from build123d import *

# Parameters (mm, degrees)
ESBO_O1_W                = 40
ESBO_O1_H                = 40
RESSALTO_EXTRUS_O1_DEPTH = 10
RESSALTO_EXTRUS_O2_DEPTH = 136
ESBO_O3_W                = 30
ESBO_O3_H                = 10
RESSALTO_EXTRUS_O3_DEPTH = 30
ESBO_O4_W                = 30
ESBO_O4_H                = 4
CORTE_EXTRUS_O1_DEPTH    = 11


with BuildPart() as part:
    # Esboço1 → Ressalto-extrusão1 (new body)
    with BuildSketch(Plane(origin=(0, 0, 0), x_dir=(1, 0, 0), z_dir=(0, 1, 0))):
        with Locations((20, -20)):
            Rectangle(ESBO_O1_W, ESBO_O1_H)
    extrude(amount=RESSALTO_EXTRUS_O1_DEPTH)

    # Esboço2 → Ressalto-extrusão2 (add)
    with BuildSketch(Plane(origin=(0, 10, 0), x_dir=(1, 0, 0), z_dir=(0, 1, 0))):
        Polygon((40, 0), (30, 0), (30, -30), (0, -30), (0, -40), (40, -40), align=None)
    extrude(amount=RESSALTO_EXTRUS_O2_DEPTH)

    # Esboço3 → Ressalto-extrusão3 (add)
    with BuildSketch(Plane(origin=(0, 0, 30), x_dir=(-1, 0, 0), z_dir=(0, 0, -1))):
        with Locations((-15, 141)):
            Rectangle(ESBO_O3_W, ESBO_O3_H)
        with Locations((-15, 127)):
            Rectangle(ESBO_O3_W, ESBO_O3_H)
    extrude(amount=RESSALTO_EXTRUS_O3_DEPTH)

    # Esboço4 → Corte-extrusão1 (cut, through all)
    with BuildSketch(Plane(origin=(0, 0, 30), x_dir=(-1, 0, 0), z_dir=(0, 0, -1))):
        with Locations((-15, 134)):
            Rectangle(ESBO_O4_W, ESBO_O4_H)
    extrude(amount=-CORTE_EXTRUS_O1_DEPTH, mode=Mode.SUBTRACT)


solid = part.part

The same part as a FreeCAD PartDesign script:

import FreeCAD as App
import Part
import Sketcher

doc = App.newDocument("Part")
body = doc.addObject("PartDesign::Body", "Body")

sketch1 = body.newObject("Sketcher::SketchObject", "Sketch")
sketch1.AttachmentSupport = (doc.getObject("XZ_Plane"), [""])
sketch1.MapMode = "FlatFace"
sketch1.addGeometry([
    Part.LineSegment(App.Vector(0, 0, 0), App.Vector(0, 40, 0)),
    Part.LineSegment(App.Vector(0, 40, 0), App.Vector(40, 40, 0)),
    Part.LineSegment(App.Vector(40, 40, 0), App.Vector(40, 0, 0)),
    Part.LineSegment(App.Vector(40, 0, 0), App.Vector(0, 0, 0)),
], False)
sketch1.addConstraint([
    Sketcher.Constraint("Coincident", 0, 2, 1, 1),
    Sketcher.Constraint("Coincident", 1, 2, 2, 1),
    Sketcher.Constraint("Coincident", 2, 2, 3, 1),
    Sketcher.Constraint("Coincident", 3, 2, 0, 1),
    Sketcher.Constraint("Vertical", 0),
    Sketcher.Constraint("Horizontal", 1),
    Sketcher.Constraint("Vertical", 2),
    Sketcher.Constraint("Horizontal", 3),
    Sketcher.Constraint("Coincident", 3, 2, -1, 1),
    Sketcher.Constraint("Equal", 3, 0),
    Sketcher.Constraint("DistanceX", 1, 1, 1, 2, 40.0),
])
pad1 = body.newObject("PartDesign::Pad", "Pad")
pad1.Profile = sketch1
pad1.Length = 10
pad1.Reversed = True

sketch2 = body.newObject("Sketcher::SketchObject", "Sketch001")
sketch2.AttachmentSupport = (doc.getObject("XZ_Plane"), [""])
sketch2.MapMode = "FlatFace"
sketch2.AttachmentOffset = App.Placement(App.Vector(0, 0, -10), App.Rotation())
sketch2.addGeometry([
    Part.LineSegment(App.Vector(40, 0, 0), App.Vector(30, 0, 0)),
    Part.LineSegment(App.Vector(30, 0, 0), App.Vector(30, 30, 0)),
    Part.LineSegment(App.Vector(30, 30, 0), App.Vector(0, 30, 0)),
    Part.LineSegment(App.Vector(0, 30, 0), App.Vector(0, 40, 0)),
    Part.LineSegment(App.Vector(0, 40, 0), App.Vector(40, 40, 0)),
    Part.LineSegment(App.Vector(40, 40, 0), App.Vector(40, 0, 0)),
], False)
sketch2.addConstraint([
    Sketcher.Constraint("Coincident", 0, 2, 1, 1),
    Sketcher.Constraint("Coincident", 1, 2, 2, 1),
    Sketcher.Constraint("Coincident", 2, 2, 3, 1),
    Sketcher.Constraint("Coincident", 3, 2, 4, 1),
    Sketcher.Constraint("Coincident", 4, 2, 5, 1),
    Sketcher.Constraint("Coincident", 5, 2, 0, 1),
    Sketcher.Constraint("Horizontal", 0),
    Sketcher.Constraint("Vertical", 1),
    Sketcher.Constraint("Horizontal", 2),
    Sketcher.Constraint("Vertical", 3),
    Sketcher.Constraint("Horizontal", 4),
    Sketcher.Constraint("Vertical", 5),
    Sketcher.Constraint("PointOnObject", 0, 2, -1),
    Sketcher.Constraint("PointOnObject", 2, 2, -2),
    Sketcher.Constraint("Equal", 2, 1),
    Sketcher.Constraint("Equal", 0, 3),
    Sketcher.Constraint("DistanceX", 0, 2, 0, 1, 10.0),
    Sketcher.Constraint("DistanceX", 2, 2, 2, 1, 30.0),
])
pad2 = body.newObject("PartDesign::Pad", "Pad001")
pad2.Profile = sketch2
pad2.Length = 136
pad2.Reversed = True

sketch3 = body.newObject("Sketcher::SketchObject", "Sketch002")
sketch3.AttachmentSupport = (doc.getObject("XY_Plane"), [""])
sketch3.MapMode = "FlatFace"
sketch3.AttachmentOffset = App.Placement(App.Vector(0, 0, 30), App.Rotation())
sketch3.addGeometry([
    Part.LineSegment(App.Vector(30, 146, 0), App.Vector(30, 136, 0)),
    Part.LineSegment(App.Vector(30, 136, 0), App.Vector(0, 136, 0)),
    Part.LineSegment(App.Vector(0, 136, 0), App.Vector(0, 146, 0)),
    Part.LineSegment(App.Vector(0, 146, 0), App.Vector(30, 146, 0)),
    Part.LineSegment(App.Vector(30, 132, 0), App.Vector(30, 122, 0)),
    Part.LineSegment(App.Vector(30, 122, 0), App.Vector(0, 122, 0)),
    Part.LineSegment(App.Vector(0, 122, 0), App.Vector(0, 132, 0)),
    Part.LineSegment(App.Vector(0, 132, 0), App.Vector(30, 132, 0)),
], False)
sketch3.addConstraint([
    Sketcher.Constraint("Coincident", 0, 2, 1, 1),
    Sketcher.Constraint("Coincident", 1, 2, 2, 1),
    Sketcher.Constraint("Coincident", 2, 2, 3, 1),
    Sketcher.Constraint("Coincident", 3, 2, 0, 1),
    Sketcher.Constraint("Coincident", 4, 2, 5, 1),
    Sketcher.Constraint("Coincident", 5, 2, 6, 1),
    Sketcher.Constraint("Coincident", 6, 2, 7, 1),
    Sketcher.Constraint("Coincident", 7, 2, 4, 1),
    Sketcher.Constraint("Vertical", 0),
    Sketcher.Constraint("Horizontal", 1),
    Sketcher.Constraint("Vertical", 2),
    Sketcher.Constraint("Horizontal", 3),
    Sketcher.Constraint("Vertical", 4),
    Sketcher.Constraint("Horizontal", 5),
    Sketcher.Constraint("Vertical", 6),
    Sketcher.Constraint("Horizontal", 7),
    Sketcher.Constraint("PointOnObject", 1, 2, -2),
    Sketcher.Constraint("PointOnObject", 5, 2, -2),
    Sketcher.Constraint("Vertical", 3, 2, 4, 2),
    Sketcher.Constraint("Equal", 2, 4),
    Sketcher.Constraint("DistanceX", 1, 2, 1, 1, 30.0),
    Sketcher.Constraint("DistanceY", 0, 2, 0, 1, 10.0),
    Sketcher.Constraint("DistanceY", -1, 1, 0, 2, 136.0),
    Sketcher.Constraint("DistanceY", -1, 1, 4, 2, 122.0),
])
pad3 = body.newObject("PartDesign::Pad", "Pad002")
pad3.Profile = sketch3
pad3.Length = 30
pad3.Reversed = True

sketch4 = body.newObject("Sketcher::SketchObject", "Sketch003")
sketch4.AttachmentSupport = (doc.getObject("XY_Plane"), [""])
sketch4.MapMode = "FlatFace"
sketch4.AttachmentOffset = App.Placement(App.Vector(0, 0, 30), App.Rotation())
sketch4.addGeometry([
    Part.LineSegment(App.Vector(30, 136, 0), App.Vector(30, 132, 0)),
    Part.LineSegment(App.Vector(30, 132, 0), App.Vector(0, 132, 0)),
    Part.LineSegment(App.Vector(0, 132, 0), App.Vector(0, 136, 0)),
    Part.LineSegment(App.Vector(0, 136, 0), App.Vector(30, 136, 0)),
], False)
sketch4.addConstraint([
    Sketcher.Constraint("Coincident", 0, 2, 1, 1),
    Sketcher.Constraint("Coincident", 1, 2, 2, 1),
    Sketcher.Constraint("Coincident", 2, 2, 3, 1),
    Sketcher.Constraint("Coincident", 3, 2, 0, 1),
    Sketcher.Constraint("Vertical", 0),
    Sketcher.Constraint("Horizontal", 1),
    Sketcher.Constraint("Vertical", 2),
    Sketcher.Constraint("Horizontal", 3),
    Sketcher.Constraint("PointOnObject", 1, 2, -2),
    Sketcher.Constraint("DistanceX", 1, 2, 1, 1, 30.0),
    Sketcher.Constraint("DistanceY", 0, 2, 0, 1, 4.0),
    Sketcher.Constraint("DistanceY", -1, 1, 0, 2, 132.0),
])
pocket1 = body.newObject("PartDesign::Pocket", "Pocket")
pocket1.Profile = sketch4
pocket1.Type = "ThroughAll"
pocket1.Reversed = True

doc.recompute()
